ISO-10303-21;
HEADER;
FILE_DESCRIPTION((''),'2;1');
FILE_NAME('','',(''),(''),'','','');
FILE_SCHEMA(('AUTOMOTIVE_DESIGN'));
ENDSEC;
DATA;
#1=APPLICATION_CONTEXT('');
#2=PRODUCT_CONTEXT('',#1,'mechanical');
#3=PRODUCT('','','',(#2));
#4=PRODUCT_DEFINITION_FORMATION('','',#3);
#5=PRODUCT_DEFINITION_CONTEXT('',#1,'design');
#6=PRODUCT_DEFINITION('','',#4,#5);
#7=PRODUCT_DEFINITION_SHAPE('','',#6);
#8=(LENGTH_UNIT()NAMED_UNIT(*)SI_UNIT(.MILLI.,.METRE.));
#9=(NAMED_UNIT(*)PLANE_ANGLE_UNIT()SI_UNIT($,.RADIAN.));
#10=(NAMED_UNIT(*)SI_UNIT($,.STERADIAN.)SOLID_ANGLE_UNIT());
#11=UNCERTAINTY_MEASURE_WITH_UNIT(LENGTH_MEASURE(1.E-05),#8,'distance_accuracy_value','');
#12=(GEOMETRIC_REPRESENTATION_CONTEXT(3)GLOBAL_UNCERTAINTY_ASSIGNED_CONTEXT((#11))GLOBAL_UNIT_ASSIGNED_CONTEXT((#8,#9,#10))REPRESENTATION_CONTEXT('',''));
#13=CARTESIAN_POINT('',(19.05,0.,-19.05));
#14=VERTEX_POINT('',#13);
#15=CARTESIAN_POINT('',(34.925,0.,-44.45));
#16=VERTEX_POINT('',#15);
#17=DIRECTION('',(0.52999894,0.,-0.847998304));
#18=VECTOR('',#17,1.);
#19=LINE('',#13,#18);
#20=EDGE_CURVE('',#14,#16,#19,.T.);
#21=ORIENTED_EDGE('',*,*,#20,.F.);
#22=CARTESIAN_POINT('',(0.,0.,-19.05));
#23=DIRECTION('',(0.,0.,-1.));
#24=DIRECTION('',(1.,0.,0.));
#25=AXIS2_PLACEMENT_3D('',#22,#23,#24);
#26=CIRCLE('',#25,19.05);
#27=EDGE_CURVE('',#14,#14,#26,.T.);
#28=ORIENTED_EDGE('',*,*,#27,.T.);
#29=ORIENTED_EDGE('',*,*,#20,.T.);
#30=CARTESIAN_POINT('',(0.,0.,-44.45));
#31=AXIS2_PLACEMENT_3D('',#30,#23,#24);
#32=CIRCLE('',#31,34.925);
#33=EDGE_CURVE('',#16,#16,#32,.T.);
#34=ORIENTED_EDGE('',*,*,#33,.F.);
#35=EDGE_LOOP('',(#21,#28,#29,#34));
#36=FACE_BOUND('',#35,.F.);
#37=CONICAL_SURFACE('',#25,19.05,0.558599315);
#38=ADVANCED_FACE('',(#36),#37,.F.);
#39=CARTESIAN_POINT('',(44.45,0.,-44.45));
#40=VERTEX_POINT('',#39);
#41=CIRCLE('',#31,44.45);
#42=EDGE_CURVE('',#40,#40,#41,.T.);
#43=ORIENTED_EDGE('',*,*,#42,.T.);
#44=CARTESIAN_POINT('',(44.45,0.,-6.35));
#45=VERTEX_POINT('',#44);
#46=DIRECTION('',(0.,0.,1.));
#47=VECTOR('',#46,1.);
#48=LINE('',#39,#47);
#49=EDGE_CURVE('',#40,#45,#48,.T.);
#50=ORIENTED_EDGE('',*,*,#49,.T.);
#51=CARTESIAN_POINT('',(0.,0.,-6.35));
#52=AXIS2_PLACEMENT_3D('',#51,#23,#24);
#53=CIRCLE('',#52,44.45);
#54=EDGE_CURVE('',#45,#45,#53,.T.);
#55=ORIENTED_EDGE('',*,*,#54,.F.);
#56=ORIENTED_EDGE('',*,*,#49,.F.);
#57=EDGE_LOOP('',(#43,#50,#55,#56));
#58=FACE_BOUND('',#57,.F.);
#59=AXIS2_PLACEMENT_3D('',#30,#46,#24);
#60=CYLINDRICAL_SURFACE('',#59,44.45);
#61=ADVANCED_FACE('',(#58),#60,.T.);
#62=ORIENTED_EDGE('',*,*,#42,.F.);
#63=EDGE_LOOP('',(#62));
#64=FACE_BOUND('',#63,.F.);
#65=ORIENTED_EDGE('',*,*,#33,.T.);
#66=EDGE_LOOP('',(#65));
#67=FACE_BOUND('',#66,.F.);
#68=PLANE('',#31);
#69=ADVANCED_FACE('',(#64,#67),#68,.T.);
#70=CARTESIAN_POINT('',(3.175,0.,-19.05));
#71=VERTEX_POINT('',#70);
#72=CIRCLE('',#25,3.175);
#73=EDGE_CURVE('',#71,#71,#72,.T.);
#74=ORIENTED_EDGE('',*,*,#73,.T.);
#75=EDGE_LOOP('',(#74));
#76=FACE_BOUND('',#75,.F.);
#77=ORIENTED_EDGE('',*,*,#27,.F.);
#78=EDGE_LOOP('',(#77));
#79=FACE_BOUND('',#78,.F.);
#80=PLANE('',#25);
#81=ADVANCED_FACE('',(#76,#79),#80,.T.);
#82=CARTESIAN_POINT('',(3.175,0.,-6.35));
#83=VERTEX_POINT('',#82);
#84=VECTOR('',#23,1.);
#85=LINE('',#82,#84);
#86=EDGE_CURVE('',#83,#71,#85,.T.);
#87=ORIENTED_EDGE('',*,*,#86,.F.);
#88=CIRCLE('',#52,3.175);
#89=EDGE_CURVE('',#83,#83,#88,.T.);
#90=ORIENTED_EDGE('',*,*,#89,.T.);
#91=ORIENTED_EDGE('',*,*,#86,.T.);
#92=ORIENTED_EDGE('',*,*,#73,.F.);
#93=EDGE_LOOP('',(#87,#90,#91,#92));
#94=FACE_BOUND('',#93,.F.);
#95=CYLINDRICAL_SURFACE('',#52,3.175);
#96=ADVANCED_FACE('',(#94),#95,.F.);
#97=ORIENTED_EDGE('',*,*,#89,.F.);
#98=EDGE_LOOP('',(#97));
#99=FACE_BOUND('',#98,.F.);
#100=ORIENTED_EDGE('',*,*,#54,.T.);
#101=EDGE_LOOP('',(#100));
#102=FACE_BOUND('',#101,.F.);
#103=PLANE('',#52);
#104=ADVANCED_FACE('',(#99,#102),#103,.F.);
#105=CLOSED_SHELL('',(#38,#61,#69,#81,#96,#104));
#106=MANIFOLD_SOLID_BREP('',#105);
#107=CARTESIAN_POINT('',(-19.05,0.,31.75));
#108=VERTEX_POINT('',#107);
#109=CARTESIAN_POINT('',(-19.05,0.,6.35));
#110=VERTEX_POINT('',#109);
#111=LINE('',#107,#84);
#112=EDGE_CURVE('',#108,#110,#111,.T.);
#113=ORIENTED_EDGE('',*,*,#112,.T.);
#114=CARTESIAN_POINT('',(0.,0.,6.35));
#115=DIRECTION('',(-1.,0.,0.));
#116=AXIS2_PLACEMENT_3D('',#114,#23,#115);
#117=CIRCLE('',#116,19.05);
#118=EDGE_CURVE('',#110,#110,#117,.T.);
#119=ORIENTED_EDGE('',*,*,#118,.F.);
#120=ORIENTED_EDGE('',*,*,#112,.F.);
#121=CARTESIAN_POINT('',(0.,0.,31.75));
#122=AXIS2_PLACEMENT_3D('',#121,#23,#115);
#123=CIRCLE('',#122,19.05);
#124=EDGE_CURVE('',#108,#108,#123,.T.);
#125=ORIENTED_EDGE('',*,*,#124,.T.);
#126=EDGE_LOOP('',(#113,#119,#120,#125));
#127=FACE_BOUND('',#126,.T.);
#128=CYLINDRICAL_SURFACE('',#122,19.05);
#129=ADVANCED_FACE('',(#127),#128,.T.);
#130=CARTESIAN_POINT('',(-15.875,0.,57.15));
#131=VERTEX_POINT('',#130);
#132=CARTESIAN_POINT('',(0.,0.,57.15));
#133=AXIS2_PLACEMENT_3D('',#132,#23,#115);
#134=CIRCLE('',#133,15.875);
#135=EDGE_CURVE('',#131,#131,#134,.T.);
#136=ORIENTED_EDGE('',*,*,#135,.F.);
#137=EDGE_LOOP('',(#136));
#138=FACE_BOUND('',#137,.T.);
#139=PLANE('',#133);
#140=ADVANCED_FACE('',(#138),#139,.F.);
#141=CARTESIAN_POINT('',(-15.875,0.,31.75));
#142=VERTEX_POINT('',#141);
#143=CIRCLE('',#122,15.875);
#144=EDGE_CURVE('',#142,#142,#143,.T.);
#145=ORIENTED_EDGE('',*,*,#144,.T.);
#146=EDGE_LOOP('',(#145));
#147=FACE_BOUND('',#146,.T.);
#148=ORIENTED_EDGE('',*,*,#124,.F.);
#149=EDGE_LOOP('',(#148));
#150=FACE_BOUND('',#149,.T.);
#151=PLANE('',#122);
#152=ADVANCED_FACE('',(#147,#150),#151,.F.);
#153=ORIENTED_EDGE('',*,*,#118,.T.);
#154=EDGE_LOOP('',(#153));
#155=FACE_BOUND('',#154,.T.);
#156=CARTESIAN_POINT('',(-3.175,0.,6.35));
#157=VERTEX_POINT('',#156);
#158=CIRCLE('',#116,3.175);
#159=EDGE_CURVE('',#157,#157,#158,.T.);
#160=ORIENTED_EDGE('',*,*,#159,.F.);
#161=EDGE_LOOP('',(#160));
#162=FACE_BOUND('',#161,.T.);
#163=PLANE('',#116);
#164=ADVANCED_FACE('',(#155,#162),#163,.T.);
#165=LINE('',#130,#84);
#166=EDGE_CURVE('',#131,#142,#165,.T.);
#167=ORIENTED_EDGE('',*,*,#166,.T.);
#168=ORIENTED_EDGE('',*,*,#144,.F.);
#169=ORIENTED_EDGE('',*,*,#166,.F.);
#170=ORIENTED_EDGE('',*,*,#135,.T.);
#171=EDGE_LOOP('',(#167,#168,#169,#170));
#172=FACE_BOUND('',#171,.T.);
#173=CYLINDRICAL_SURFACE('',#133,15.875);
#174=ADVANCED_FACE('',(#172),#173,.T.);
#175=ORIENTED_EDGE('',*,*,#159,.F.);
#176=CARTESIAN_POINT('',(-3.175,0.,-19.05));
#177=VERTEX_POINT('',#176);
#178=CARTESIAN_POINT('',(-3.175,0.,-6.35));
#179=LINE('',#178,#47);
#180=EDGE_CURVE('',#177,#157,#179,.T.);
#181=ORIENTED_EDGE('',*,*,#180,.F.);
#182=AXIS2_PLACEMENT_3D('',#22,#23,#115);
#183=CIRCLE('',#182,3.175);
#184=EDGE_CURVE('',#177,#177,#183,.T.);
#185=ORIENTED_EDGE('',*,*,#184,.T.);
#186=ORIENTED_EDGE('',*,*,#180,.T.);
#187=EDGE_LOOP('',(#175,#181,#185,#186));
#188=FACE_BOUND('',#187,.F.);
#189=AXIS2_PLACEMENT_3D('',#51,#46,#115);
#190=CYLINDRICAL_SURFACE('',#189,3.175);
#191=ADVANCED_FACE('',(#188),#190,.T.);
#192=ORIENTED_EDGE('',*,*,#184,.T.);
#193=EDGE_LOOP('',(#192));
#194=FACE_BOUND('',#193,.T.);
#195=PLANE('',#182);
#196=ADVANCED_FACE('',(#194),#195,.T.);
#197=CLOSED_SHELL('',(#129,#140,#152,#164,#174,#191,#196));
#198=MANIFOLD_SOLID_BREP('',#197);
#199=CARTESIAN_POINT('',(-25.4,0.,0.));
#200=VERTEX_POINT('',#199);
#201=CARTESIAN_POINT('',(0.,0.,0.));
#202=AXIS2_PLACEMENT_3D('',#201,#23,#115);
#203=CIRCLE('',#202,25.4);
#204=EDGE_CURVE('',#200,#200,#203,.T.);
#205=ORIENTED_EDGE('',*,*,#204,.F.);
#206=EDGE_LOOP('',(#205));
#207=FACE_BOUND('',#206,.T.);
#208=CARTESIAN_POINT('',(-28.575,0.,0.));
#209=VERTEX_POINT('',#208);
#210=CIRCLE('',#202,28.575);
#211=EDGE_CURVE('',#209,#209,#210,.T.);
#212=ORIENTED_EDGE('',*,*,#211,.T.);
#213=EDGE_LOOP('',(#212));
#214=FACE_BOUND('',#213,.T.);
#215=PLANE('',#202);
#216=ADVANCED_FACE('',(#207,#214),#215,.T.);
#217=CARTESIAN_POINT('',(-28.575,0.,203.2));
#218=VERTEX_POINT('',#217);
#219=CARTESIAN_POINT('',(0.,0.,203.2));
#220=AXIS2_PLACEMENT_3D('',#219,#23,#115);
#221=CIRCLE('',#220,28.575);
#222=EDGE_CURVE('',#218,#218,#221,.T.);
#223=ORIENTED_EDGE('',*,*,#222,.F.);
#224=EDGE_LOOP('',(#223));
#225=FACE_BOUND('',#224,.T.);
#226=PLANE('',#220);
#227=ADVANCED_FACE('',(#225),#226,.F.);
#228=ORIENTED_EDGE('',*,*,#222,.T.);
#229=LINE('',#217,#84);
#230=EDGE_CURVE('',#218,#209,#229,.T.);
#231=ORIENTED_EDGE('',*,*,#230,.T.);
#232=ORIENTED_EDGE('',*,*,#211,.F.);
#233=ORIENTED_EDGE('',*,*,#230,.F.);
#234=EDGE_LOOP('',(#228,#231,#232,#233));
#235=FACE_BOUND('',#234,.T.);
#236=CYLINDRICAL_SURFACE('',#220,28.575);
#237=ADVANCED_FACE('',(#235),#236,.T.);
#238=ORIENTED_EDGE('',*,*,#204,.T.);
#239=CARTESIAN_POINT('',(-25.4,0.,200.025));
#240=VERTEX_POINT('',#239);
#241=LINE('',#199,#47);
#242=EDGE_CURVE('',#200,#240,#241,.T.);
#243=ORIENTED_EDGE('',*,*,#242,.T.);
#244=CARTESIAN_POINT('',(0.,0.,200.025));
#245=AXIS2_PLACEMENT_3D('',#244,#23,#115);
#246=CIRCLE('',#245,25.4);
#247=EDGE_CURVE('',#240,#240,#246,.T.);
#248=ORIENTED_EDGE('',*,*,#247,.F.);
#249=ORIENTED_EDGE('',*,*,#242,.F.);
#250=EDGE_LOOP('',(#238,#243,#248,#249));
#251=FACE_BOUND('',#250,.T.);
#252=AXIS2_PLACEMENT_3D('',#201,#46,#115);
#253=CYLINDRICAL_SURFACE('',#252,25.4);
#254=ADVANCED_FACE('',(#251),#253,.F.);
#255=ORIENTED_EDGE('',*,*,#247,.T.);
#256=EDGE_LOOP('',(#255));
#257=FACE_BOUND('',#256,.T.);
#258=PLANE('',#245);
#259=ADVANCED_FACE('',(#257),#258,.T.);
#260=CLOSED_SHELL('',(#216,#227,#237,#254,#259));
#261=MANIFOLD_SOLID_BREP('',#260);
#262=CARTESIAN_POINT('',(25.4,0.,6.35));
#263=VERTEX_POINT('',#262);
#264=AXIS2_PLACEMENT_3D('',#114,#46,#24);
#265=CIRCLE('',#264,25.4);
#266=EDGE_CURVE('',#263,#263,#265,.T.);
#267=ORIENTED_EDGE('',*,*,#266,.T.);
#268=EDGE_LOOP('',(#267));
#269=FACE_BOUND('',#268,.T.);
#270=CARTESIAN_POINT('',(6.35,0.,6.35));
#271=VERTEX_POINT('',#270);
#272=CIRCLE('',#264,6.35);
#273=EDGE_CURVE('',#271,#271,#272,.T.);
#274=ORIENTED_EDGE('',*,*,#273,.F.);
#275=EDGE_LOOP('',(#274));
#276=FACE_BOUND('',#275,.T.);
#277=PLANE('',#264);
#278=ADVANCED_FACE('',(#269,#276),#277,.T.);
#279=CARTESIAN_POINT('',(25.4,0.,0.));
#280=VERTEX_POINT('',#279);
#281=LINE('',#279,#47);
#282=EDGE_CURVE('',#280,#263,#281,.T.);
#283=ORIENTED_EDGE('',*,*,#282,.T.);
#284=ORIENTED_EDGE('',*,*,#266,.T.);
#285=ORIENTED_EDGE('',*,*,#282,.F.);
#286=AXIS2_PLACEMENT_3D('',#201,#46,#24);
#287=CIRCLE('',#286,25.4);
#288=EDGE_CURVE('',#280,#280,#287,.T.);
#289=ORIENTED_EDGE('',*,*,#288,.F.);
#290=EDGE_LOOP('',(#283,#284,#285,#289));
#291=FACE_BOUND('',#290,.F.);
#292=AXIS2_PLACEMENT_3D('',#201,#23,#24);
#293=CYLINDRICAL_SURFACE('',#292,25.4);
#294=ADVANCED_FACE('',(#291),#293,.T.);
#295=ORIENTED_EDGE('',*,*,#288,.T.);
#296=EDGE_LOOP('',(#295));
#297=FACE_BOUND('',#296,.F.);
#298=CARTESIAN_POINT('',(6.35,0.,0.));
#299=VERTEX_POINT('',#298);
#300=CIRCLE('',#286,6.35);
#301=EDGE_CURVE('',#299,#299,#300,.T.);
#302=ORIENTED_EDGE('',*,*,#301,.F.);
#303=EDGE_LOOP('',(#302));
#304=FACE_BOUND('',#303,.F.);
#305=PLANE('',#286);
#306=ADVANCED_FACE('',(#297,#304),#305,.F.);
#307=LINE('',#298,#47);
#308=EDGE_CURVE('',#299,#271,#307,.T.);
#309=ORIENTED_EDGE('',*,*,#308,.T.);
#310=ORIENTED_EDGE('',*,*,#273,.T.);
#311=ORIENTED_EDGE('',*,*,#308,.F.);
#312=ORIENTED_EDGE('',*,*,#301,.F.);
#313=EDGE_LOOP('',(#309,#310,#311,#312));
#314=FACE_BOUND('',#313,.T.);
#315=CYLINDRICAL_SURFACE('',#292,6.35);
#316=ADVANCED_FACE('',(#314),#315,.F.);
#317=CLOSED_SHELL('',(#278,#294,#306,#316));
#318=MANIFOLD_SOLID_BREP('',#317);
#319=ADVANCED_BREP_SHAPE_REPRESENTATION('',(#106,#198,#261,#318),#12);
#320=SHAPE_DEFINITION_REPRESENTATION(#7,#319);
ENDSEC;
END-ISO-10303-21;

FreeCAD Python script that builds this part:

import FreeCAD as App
import Part
import Sketcher

V = App.Vector
Q = App.Units.Quantity


def add_polygon(sketch, points):
    """Adds a closed chain of lines whose ends are joined by coincident constraints."""
    first, n = sketch.GeometryCount, len(points)
    for a, b in zip(points, points[1:] + points[:1]):
        sketch.addGeometry(Part.LineSegment(App.Vector(*a, 0), App.Vector(*b, 0)), False)
    for i in range(n):
        sketch.addConstraint(Sketcher.Constraint("Coincident", first + i, 2, first + (i + 1) % n, 1))

doc = App.newDocument("Part")
body = doc.addObject("PartDesign::Body", "Body")

# Sketch on XZ plane
sketch1 = body.newObject("Sketcher::SketchObject", "Sketch")
sketch1.AttachmentSupport = (doc.getObject("XZ_Plane"), [""])
sketch1.MapMode = "FlatFace"
add_polygon(sketch1, [(-28.575, 0), (-25.4, 0), (-25.4, 200.025), (0, 200.025), (0, 203.2), (-28.575, 203.2)])  # lines 0-5
sketch1.addConstraint([
    Sketcher.Constraint("Horizontal", 0),
    Sketcher.Constraint("Vertical", 1),
    Sketcher.Constraint("Horizontal", 2),
    Sketcher.Constraint("Vertical", 3),
    Sketcher.Constraint("Horizontal", 4),
    Sketcher.Constraint("Vertical", 5),
    Sketcher.Constraint("PointOnObject", 0, 2, -1),
    Sketcher.Constraint("PointOnObject", 2, 2, -2),
    Sketcher.Constraint("Equal", 0, 3),
    Sketcher.Constraint("DistanceX", 2, 1, 2, 2, Q("1 in")),
    Sketcher.Constraint("DistanceY", 5, 2, 5, 1, Q("8 in")),
    Sketcher.Constraint("DistanceX", 0, 1, 0, 2, Q("0.125 in")),
])
revolution = body.newObject("PartDesign::Revolution", "Revolution")
revolution.Profile = sketch1
revolution.ReferenceAxis = (sketch1, ["V_Axis"])
revolution.Angle = 360
body2 = doc.addObject("PartDesign::Body", "Body001")

# Sketch on XY plane
sketch2 = body2.newObject("Sketcher::SketchObject", "Sketch001")
sketch2.AttachmentSupport = (doc.getObject("XY_Plane001"), [""])
sketch2.MapMode = "FlatFace"
sketch2.addGeometry([
    Part.Circle(V(0, 0, 0), V(0, 0, 1), 25.4),
    Part.Circle(V(0, 0, 0), V(0, 0, 1), 6.35),
], False)
sketch2.addConstraint([
    Sketcher.Constraint("Coincident", 0, 3, -1, 1),
    Sketcher.Constraint("Coincident", 1, 3, -1, 1),
    Sketcher.Constraint("Diameter", 0, Q("2 in")),
    Sketcher.Constraint("Diameter", 1, Q("0.5 in")),
])
pad1 = body2.newObject("PartDesign::Pad", "Pad")
pad1.Profile = sketch2
pad1.Length = Q("0.25 in")
body3 = doc.addObject("PartDesign::Body", "Body002")

# Sketch on XZ plane
sketch3 = body3.newObject("Sketcher::SketchObject", "Sketch002")
sketch3.AttachmentSupport = (doc.getObject("XZ_Plane002"), [""])
sketch3.MapMode = "FlatFace"
add_polygon(sketch3, [(0, 57.15), (-15.875, 57.15), (-15.875, 31.75), (-19.05, 31.75), (-19.05, 6.35), (-3.175, 6.35), (-3.175, -19.05), (0, -19.05)])  # lines 0-7
sketch3.addConstraint([
    Sketcher.Constraint("Horizontal", 0),
    Sketcher.Constraint("Vertical", 1),
    Sketcher.Constraint("Horizontal", 2),
    Sketcher.Constraint("Vertical", 3),
    Sketcher.Constraint("Horizontal", 4),
    Sketcher.Constraint("Vertical", 5),
    Sketcher.Constraint("Horizontal", 6),
    Sketcher.Constraint("Vertical", 7),
    Sketcher.Constraint("PointOnObject", 6, 2, -2),
    Sketcher.Constraint("Equal", 0, 4),
    Sketcher.Constraint("Equal", 1, 3),
    Sketcher.Constraint("Equal", 3, 5),
    Sketcher.Constraint("DistanceY", 1, 2, 1, 1, Q("1 in")),
    Sketcher.Constraint("DistanceX", 1, 2, 4, 2, Q("0.5 in")),
    Sketcher.Constraint("DistanceX", 0, 2, 0, 1, Q("0.625 in")),
    Sketcher.Constraint("DistanceY", -1, 1, 0, 2, Q("2.25 in")),
])
revolution2 = body3.newObject("PartDesign::Revolution", "Revolution001")
revolution2.Profile = sketch3
revolution2.ReferenceAxis = (sketch3, ["V_Axis"])
revolution2.Angle = 360
body4 = doc.addObject("PartDesign::Body", "Body003")

# Sketch on XZ plane
sketch4 = body4.newObject("Sketcher::SketchObject", "Sketch003")
sketch4.AttachmentSupport = (doc.getObject("XZ_Plane003"), [""])
sketch4.MapMode = "FlatFace"
add_polygon(sketch4, [(44.45, -6.35), (3.175, -6.35), (3.175, -19.05), (19.05, -19.05), (34.925, -44.45), (44.45, -44.45)])  # lines 0-5
sketch4.addConstraint([
    Sketcher.Constraint("Horizontal", 0),
    Sketcher.Constraint("Vertical", 1),
    Sketcher.Constraint("Horizontal", 2),
    Sketcher.Constraint("Horizontal", 4),
    Sketcher.Constraint("Vertical", 5),
    Sketcher.Constraint("DistanceY", 1, 2, 1, 1, Q("0.5 in")),
    Sketcher.Constraint("DistanceY", 5, 1, 5, 2, Q("1.5 in")),
    Sketcher.Constraint("DistanceX", 2, 2, 4, 2, Q("1 in")),
    Sketcher.Constraint("DistanceX", 0, 2, 0, 1, Q("1.625 in")),
    Sketcher.Constraint("DistanceX", 4, 1, 4, 2, Q("0.375 in")),
    Sketcher.Constraint("DistanceY", 0, 2, -1, 1, Q("0.25 in")),
    Sketcher.Constraint("DistanceX", -1, 1, 2, 2, Q("0.75 in")),
])
revolution3 = body4.newObject("PartDesign::Revolution", "Revolution002")
revolution3.Profile = sketch4
revolution3.ReferenceAxis = (sketch4, ["V_Axis"])
revolution3.Angle = 360

doc.recompute()
